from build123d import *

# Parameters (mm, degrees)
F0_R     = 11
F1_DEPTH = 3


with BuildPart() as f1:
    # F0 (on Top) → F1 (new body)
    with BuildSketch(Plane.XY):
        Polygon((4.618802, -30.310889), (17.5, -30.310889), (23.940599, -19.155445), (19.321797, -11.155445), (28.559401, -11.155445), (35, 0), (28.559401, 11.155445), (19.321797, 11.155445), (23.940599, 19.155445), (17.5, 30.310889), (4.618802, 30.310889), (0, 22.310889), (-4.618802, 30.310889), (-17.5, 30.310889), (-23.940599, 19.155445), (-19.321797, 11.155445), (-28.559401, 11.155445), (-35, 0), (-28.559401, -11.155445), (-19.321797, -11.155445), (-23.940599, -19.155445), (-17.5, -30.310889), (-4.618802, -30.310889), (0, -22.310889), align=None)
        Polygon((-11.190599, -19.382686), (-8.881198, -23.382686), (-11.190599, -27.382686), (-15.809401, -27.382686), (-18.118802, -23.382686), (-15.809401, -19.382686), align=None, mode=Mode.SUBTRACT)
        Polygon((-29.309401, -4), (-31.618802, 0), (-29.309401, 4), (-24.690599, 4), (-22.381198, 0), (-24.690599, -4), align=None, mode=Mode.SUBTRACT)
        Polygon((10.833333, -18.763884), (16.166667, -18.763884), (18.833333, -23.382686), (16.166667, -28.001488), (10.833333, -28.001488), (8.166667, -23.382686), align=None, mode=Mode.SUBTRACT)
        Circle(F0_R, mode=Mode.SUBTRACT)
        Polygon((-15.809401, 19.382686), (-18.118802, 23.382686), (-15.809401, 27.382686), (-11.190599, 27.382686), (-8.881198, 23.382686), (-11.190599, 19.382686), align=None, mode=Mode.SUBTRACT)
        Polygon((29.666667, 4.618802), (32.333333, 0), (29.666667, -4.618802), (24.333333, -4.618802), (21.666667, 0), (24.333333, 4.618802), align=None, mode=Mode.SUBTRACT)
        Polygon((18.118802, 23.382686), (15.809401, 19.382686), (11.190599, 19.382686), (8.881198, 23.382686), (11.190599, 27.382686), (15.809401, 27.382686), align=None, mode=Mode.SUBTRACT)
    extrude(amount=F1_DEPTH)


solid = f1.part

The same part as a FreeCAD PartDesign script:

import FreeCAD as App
import Part
import Sketcher
from FreeCAD import Vector
Q = App.Units.Quantity


def add_polygon(sketch, points):
    """Adds a closed chain of lines whose ends are joined by coincident constraints."""
    first, n = sketch.GeometryCount, len(points)
    for a, b in zip(points, points[1:] + points[:1]):
        sketch.addGeometry(Part.LineSegment(App.Vector(*a, 0), App.Vector(*b, 0)), False)
    for i in range(n):
        sketch.addConstraint(Sketcher.Constraint("Coincident", first + i, 2, first + (i + 1) % n, 1))

doc = App.newDocument("Part")
body = doc.addObject("PartDesign::Body", "Body")

# Sketch on XY plane
sketch1 = body.newObject("Sketcher::SketchObject", "Sketch")
sketch1.AttachmentSupport = (doc.getObject("XY_Plane"), [""])
sketch1.MapMode = "FlatFace"
add_polygon(sketch1, [(4.618802, -30.310889), (17.5, -30.310889), (23.940599, -19.155445), (19.321797, -11.155445), (28.559401, -11.155445), (35, 0), (28.559401, 11.155445), (19.321797, 11.155445), (23.940599, 19.155445), (17.5, 30.310889), (4.618802, 30.310889), (0, 22.310889), (-4.618802, 30.310889), (-17.5, 30.310889), (-23.940599, 19.155445), (-19.321797, 11.155445), (-28.559401, 11.155445), (-35, 0), (-28.559401, -11.155445), (-19.321797, -11.155445), (-23.940599, -19.155445), (-17.5, -30.310889), (-4.618802, -30.310889), (0, -22.310889)])  # lines 0-23
add_polygon(sketch1, [(-15.809401, -19.382686), (-11.190599, -19.382686), (-8.881198, -23.382686), (-11.190599, -27.382686), (-15.809401, -27.382686), (-18.118802, -23.382686)])  # lines 24-29
add_polygon(sketch1, [(8.166667, -23.382686), (10.833333, -18.763884), (16.166667, -18.763884), (18.833333, -23.382686), (16.166667, -28.001488), (10.833333, -28.001488)])  # lines 30-35
add_polygon(sketch1, [(-24.690599, -4), (-29.309401, -4), (-31.618802, 0), (-29.309401, 4), (-24.690599, 4), (-22.381198, 0)])  # lines 36-41
sketch1.addGeometry(Part.Circle(Vector(0, 0, 0), Vector(0, 0, 1), 11), False)  # 42
add_polygon(sketch1, [(-11.190599, 19.382686), (-15.809401, 19.382686), (-18.118802, 23.382686), (-15.809401, 27.382686), (-11.190599, 27.382686), (-8.881198, 23.382686)])  # lines 43-48
add_polygon(sketch1, [(24.333333, 4.618802), (29.666667, 4.618802), (32.333333, 0), (29.666667, -4.618802), (24.333333, -4.618802), (21.666667, 0)])  # lines 49-54
add_polygon(sketch1, [(15.809401, 27.382686), (18.118802, 23.382686), (15.809401, 19.382686), (11.190599, 19.382686), (8.881198, 23.382686), (11.190599, 27.382686)])  # lines 55-60
sketch1.addConstraint(Sketcher.Constraint("Horizontal", 0))
sketch1.addConstraint(Sketcher.Constraint("Horizontal", 3))
sketch1.addConstraint(Sketcher.Constraint("Horizontal", 6))
sketch1.addConstraint(Sketcher.Constraint("Horizontal", 9))
sketch1.addConstraint(Sketcher.Constraint("Horizontal", 12))
sketch1.addConstraint(Sketcher.Constraint("Horizontal", 15))
sketch1.addConstraint(Sketcher.Constraint("Horizontal", 18))
sketch1.addConstraint(Sketcher.Constraint("Horizontal", 21))
sketch1.addConstraint(Sketcher.Constraint("Horizontal", 24))
sketch1.addConstraint(Sketcher.Constraint("Horizontal", 27))
sketch1.addConstraint(Sketcher.Constraint("Horizontal", 31))
sketch1.addConstraint(Sketcher.Constraint("Horizontal", 34))
sketch1.addConstraint(Sketcher.Constraint("Horizontal", 36))
sketch1.addConstraint(Sketcher.Constraint("Horizontal", 39))
sketch1.addConstraint(Sketcher.Constraint("Horizontal", 43))
sketch1.addConstraint(Sketcher.Constraint("Horizontal", 46))
sketch1.addConstraint(Sketcher.Constraint("Horizontal", 49))
sketch1.addConstraint(Sketcher.Constraint("Horizontal", 52))
sketch1.addConstraint(Sketcher.Constraint("Horizontal", 57))
sketch1.addConstraint(Sketcher.Constraint("Horizontal", 60))
sketch1.addConstraint(Sketcher.Constraint("Coincident", 42, 3, -1, 1))
sketch1.addConstraint(Sketcher.Constraint("Symmetric", 0, 2, 12, 2, -1, 1))
sketch1.addConstraint(Sketcher.Constraint("Symmetric", 1, 2, 13, 2, -1, 1))
sketch1.addConstraint(Sketcher.Constraint("Symmetric", 2, 2, 14, 2, -1, 1))
sketch1.addConstraint(Sketcher.Constraint("Symmetric", 4, 2, 16, 2, -1, 1))
sketch1.addConstraint(Sketcher.Constraint("Symmetric", 5, 2, 17, 2, -1, 1))
sketch1.addConstraint(Sketcher.Constraint("Symmetric", 7, 2, 19, 2, -1, 1))
sketch1.addConstraint(Sketcher.Constraint("Symmetric", 8, 2, 20, 2, -1, 1))
sketch1.addConstraint(Sketcher.Constraint("Symmetric", 10, 2, 22, 2, -1, 1))
sketch1.addConstraint(Sketcher.Constraint("Symmetric", 28, 2, 55, 2, -1, 1))
sketch1.addConstraint(Sketcher.Constraint("Symmetric", 29, 2, 56, 2, -1, 1))
sketch1.addConstraint(Sketcher.Constraint("Symmetric", 25, 2, 58, 2, -1, 1))
sketch1.addConstraint(Sketcher.Constraint("Symmetric", 26, 2, 59, 2, -1, 1))
sketch1.addConstraint(Sketcher.Constraint("Symmetric", 9, 2, 11, 2, -2))
sketch1.addConstraint(Sketcher.Constraint("Symmetric", 7, 2, 13, 2, -2))
sketch1.addConstraint(Sketcher.Constraint("Symmetric", 6, 2, 14, 2, -2))
sketch1.addConstraint(Sketcher.Constraint("Symmetric", 44, 2, 55, 2, -2))
sketch1.addConstraint(Sketcher.Constraint("Symmetric", 43, 2, 56, 2, -2))
sketch1.addConstraint(Sketcher.Constraint("Symmetric", 47, 2, 58, 2, -2))
sketch1.addConstraint(Sketcher.Constraint("Symmetric", 46, 2, 59, 2, -2))
sketch1.addConstraint(Sketcher.Constraint("Symmetric", 36, 2, 38, 2, -1))
sketch1.addConstraint(Sketcher.Constraint("Symmetric", 49, 2, 51, 2, -1))
sketch1.addConstraint(Sketcher.Constraint("PointOnObject", 4, 2, -1))
sketch1.addConstraint(Sketcher.Constraint("PointOnObject", 10, 2, -2))
sketch1.addConstraint(Sketcher.Constraint("PointOnObject", 37, 2, -1))
sketch1.addConstraint(Sketcher.Constraint("PointOnObject", 40, 2, -1))
sketch1.addConstraint(Sketcher.Constraint("PointOnObject", 50, 2, -1))
sketch1.addConstraint(Sketcher.Constraint("PointOnObject", 53, 2, -1))
sketch1.addConstraint(Sketcher.Constraint("Parallel", 1, 4))
sketch1.addConstraint(Sketcher.Constraint("Parallel", 2, 5))
sketch1.addConstraint(Sketcher.Constraint("Parallel", 4, 7))
sketch1.addConstraint(Sketcher.Constraint("Parallel", 5, 8))
sketch1.addConstraint(Sketcher.Constraint("Parallel", 7, 10))
sketch1.addConstraint(Sketcher.Constraint("Parallel", 13, 16))
sketch1.addConstraint(Sketcher.Constraint("Parallel", 16, 19))
sketch1.addConstraint(Sketcher.Constraint("Parallel", 19, 22))
sketch1.addConstraint(Sketcher.Constraint("Parallel", 20, 23))
sketch1.addConstraint(Sketcher.Constraint("Parallel", 23, 25))
sketch1.addConstraint(Sketcher.Constraint("Parallel", 22, 26))
sketch1.addConstraint(Sketcher.Constraint("Parallel", 25, 28))
sketch1.addConstraint(Sketcher.Constraint("Parallel", 26, 29))
sketch1.addConstraint(Sketcher.Constraint("Parallel", 29, 30))
sketch1.addConstraint(Sketcher.Constraint("Parallel", 28, 32))
sketch1.addConstraint(Sketcher.Constraint("Parallel", 30, 33))
sketch1.addConstraint(Sketcher.Constraint("Parallel", 32, 35))
sketch1.addConstraint(Sketcher.Constraint("Parallel", 35, 37))
sketch1.addConstraint(Sketcher.Constraint("Parallel", 37, 40))
sketch1.addConstraint(Sketcher.Constraint("Parallel", 38, 41))
sketch1.addConstraint(Sketcher.Constraint("Parallel", 41, 45))
sketch1.addConstraint(Sketcher.Constraint("Parallel", 45, 48))
sketch1.addConstraint(Sketcher.Constraint("Parallel", 47, 50))
sketch1.addConstraint(Sketcher.Constraint("Parallel", 50, 53))
sketch1.addConstraint(Sketcher.Constraint("Parallel", 51, 54))
sketch1.addConstraint(Sketcher.Constraint("Parallel", 53, 55))
sketch1.addConstraint(Sketcher.Constraint("Parallel", 55, 58))
sketch1.addConstraint(Sketcher.Constraint("Horizontal", 25, 2, 28, 2))
sketch1.addConstraint(Sketcher.Constraint("Horizontal", 28, 2, 32, 2))
sketch1.addConstraint(Sketcher.Constraint("Horizontal", 32, 2, 35, 2))
sketch1.addConstraint(Sketcher.Constraint("Vertical", 24, 2, 26, 2))
sketch1.addConstraint(Sketcher.Constraint("Vertical", 31, 2, 33, 2))
sketch1.addConstraint(Sketcher.Constraint("Equal", 27, 36))
sketch1.addConstraint(Sketcher.Constraint("Equal", 34, 49))
sketch1.addConstraint(Sketcher.Constraint("Equal", 1, 4))
sketch1.addConstraint(Sketcher.Constraint("Equal", 7, 10))
sketch1.addConstraint(Sketcher.Constraint("Equal", 29, 37))
sketch1.addConstraint(Sketcher.Constraint("Equal", 35, 50))
sketch1.addConstraint(Sketcher.Constraint("Diameter", 42, Q("22 mm")))
sketch1.addConstraint(Sketcher.Constraint("Angle", 1, Q("59.999998 deg")))
sketch1.addConstraint(Sketcher.Constraint("DistanceX", -1, 1, 4, 2, Q("35 mm")))
sketch1.addConstraint(Sketcher.Constraint("DistanceY", 36, 2, -1, 1, Q("4 mm")))
sketch1.addConstraint(Sketcher.Constraint("DistanceX", -1, 1, 0, 2, Q("17.5 mm")))
sketch1.addConstraint(Sketcher.Constraint("DistanceX", 0, 1, 0, 2, Q("12.881198 mm")))
sketch1.addConstraint(Sketcher.Constraint("DistanceX", 24, 1, 24, 2, Q("4.618802 mm")))
sketch1.addConstraint(Sketcher.Constraint("Distance", 4, Q("12.881198 mm")))
sketch1.addConstraint(Sketcher.Constraint("DistanceX", 24, 2, -1, 1, Q("11.190599 mm")))
sketch1.addConstraint(Sketcher.Constraint("DistanceX", 36, 2, -1, 1, Q("29.309401 mm")))
sketch1.addConstraint(Sketcher.Constraint("DistanceY", -1, 1, 49, 2, Q("4.618802 mm")))
sketch1.addConstraint(Sketcher.Constraint("DistanceX", 31, 1, 31, 2, Q("5.333334 mm")))
sketch1.addConstraint(Sketcher.Constraint("DistanceY", 24, 2, -1, 1, Q("19.382686 mm")))
sketch1.addConstraint(Sketcher.Constraint("DistanceX", -1, 1, 30, 2, Q("10.833333 mm")))
sketch1.addConstraint(Sketcher.Constraint("DistanceX", -1, 1, 49, 2, Q("29.666667 mm")))
pad1 = body.newObject("PartDesign::Pad", "Pad")
pad1.Profile = sketch1
pad1.Length = 3

doc.recompute()
